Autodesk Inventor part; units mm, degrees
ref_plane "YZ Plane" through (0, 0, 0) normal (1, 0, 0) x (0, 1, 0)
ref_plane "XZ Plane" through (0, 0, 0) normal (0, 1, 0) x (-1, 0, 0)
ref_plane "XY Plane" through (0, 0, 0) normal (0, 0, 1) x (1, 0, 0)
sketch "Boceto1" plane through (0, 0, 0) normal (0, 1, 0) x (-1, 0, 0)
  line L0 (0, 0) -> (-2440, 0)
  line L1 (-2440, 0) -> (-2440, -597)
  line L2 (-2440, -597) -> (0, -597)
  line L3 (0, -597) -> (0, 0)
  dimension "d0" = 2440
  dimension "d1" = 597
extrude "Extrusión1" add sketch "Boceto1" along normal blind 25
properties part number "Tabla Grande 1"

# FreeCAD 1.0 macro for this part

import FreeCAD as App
import Part
import Sketcher

doc = App.newDocument("Part")
body = doc.addObject("PartDesign::Body", "Body")

# Sketch on XZ plane
sketch1 = body.newObject("Sketcher::SketchObject", "Sketch")
sketch1.AttachmentSupport = (doc.getObject("XZ_Plane"), [""])
sketch1.MapMode = "FlatFace"
sketch1.addGeometry([
    Part.LineSegment(App.Vector(0, -597, 0), App.Vector(0, 0, 0)),
    Part.LineSegment(App.Vector(0, 0, 0), App.Vector(2440, 0, 0)),
    Part.LineSegment(App.Vector(2440, 0, 0), App.Vector(2440, -597, 0)),
    Part.LineSegment(App.Vector(2440, -597, 0), App.Vector(0, -597, 0)),
], False)
sketch1.addConstraint([
    Sketcher.Constraint("Coincident", 0, 2, 1, 1),
    Sketcher.Constraint("Coincident", 1, 2, 2, 1),
    Sketcher.Constraint("Coincident", 2, 2, 3, 1),
    Sketcher.Constraint("Coincident", 3, 2, 0, 1),
    Sketcher.Constraint("Vertical", 0),
    Sketcher.Constraint("Horizontal", 1),
    Sketcher.Constraint("Vertical", 2),
    Sketcher.Constraint("Horizontal", 3),
    Sketcher.Constraint("Coincident", 0, 2, -1, 1),
    Sketcher.Constraint("DistanceX", 1, 1, 1, 2, 2440.0),
    Sketcher.Constraint("DistanceY", 0, 1, 0, 2, 597.0),
])
pad1 = body.newObject("PartDesign::Pad", "Pad")
pad1.Profile = sketch1
pad1.Length = 25
pad1.Reversed = True

doc.recompute()
